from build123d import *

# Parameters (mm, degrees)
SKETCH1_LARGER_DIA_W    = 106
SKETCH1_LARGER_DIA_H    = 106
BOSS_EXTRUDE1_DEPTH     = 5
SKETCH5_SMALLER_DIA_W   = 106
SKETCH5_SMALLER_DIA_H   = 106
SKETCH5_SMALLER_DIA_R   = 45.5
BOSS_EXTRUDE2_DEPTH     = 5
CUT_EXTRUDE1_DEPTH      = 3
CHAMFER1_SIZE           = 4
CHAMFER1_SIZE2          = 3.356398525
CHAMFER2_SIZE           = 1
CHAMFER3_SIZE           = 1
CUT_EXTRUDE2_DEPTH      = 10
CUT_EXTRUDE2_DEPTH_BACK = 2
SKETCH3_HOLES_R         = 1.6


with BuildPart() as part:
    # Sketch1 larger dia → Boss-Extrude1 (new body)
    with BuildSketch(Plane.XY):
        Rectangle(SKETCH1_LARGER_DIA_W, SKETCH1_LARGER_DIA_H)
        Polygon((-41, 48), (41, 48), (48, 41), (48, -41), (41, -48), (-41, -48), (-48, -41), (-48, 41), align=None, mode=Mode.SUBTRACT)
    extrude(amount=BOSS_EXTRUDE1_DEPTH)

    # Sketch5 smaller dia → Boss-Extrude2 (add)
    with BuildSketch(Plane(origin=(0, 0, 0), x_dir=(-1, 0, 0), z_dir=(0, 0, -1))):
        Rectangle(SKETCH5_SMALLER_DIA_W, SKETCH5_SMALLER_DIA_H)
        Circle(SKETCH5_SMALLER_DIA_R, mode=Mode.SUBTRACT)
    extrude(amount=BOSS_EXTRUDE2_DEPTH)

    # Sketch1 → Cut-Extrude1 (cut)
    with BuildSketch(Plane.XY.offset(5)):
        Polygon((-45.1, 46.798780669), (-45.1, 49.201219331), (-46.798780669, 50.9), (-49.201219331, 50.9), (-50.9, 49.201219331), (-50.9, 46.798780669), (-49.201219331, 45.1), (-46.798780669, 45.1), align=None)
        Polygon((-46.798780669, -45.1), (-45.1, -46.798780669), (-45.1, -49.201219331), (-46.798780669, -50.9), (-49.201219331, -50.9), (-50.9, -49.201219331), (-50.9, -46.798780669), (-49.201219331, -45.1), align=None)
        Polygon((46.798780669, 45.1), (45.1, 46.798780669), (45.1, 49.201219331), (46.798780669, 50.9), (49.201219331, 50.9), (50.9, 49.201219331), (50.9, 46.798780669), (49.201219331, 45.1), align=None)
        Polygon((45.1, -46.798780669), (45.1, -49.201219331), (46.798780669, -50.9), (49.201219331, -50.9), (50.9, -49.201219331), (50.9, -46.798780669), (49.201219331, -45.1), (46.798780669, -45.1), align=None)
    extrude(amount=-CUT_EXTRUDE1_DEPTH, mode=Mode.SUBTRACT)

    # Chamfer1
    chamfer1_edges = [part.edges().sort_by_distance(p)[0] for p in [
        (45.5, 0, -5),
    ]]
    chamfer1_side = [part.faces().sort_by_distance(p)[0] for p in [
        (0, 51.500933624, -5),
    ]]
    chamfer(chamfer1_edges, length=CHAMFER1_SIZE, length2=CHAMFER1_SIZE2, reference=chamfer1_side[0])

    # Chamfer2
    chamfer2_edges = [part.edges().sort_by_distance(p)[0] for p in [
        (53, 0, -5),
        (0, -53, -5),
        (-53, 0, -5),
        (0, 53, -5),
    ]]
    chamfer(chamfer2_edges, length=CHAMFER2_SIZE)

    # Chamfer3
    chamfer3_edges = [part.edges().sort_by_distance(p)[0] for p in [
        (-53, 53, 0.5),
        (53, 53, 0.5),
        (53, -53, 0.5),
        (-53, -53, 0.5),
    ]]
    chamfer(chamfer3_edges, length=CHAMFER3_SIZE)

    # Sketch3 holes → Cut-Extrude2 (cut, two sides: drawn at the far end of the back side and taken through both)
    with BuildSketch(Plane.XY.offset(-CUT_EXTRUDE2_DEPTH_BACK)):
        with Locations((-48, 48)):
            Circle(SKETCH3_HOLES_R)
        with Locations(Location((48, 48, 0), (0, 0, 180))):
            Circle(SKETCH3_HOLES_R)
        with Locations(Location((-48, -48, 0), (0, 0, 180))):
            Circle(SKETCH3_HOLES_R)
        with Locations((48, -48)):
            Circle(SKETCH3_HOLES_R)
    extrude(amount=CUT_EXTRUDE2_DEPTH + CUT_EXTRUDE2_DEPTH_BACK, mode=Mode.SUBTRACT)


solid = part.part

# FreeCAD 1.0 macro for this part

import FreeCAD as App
import Part
import Sketcher
Q = App.Units.Quantity


def edges_at(feature, points):
    """Names of the edges that pass closest to the given points."""
    edges = feature.Shape.Edges
    near = lambda p: min(range(len(edges)), key=lambda i: edges[i].distToShape(Part.Vertex(*p))[0])
    return sorted({f"Edge{near(p) + 1}" for p in points})


def add_polygon(sketch, points):
    """Adds a closed chain of lines whose ends are joined by coincident constraints."""
    first, n = sketch.GeometryCount, len(points)
    for a, b in zip(points, points[1:] + points[:1]):
        sketch.addGeometry(Part.LineSegment(App.Vector(*a, 0), App.Vector(*b, 0)), False)
    for i in range(n):
        sketch.addConstraint(Sketcher.Constraint("Coincident", first + i, 2, first + (i + 1) % n, 1))

doc = App.newDocument("Part")
body = doc.addObject("PartDesign::Body", "Body")

sketch1 = body.newObject("Sketcher::SketchObject", "Sketch")
sketch1.AttachmentSupport = (doc.getObject("XY_Plane"), [""])
sketch1.MapMode = "FlatFace"
add_polygon(sketch1, [(-53, 53), (-53, -53), (53, -53), (53, 53)])
add_polygon(sketch1, [(-48, 41), (-41, 48), (41, 48), (48, 41), (48, -41), (41, -48), (-41, -48), (-48, -41)])
sketch1.addConstraint([
    Sketcher.Constraint("Vertical", 0),
    Sketcher.Constraint("Horizontal", 1),
    Sketcher.Constraint("Vertical", 2),
    Sketcher.Constraint("Horizontal", 3),
    Sketcher.Constraint("Horizontal", 5),
    Sketcher.Constraint("Vertical", 7),
    Sketcher.Constraint("Horizontal", 9),
    Sketcher.Constraint("Vertical", 11),
    Sketcher.Constraint("Symmetric", 0, 2, 2, 2, -1, 1),
    Sketcher.Constraint("Symmetric", 4, 2, 8, 2, -1, 1),
    Sketcher.Constraint("Symmetric", 6, 2, 10, 2, -1, 1),
    Sketcher.Constraint("Perpendicular", 4, 6),
    Sketcher.Constraint("Perpendicular", 6, 8),
    Sketcher.Constraint("Perpendicular", 8, 10),
    Sketcher.Constraint("Horizontal", 7, 2, 10, 2),
    Sketcher.Constraint("Vertical", 5, 2, 8, 2),
    Sketcher.Constraint("Equal", 3, 0),
    Sketcher.Constraint("Equal", 9, 7),
    Sketcher.Constraint("DistanceX", 1, 1, 1, 2, Q("106 mm")),
    Sketcher.Constraint("DistanceX", 5, 1, 5, 2, Q("82 mm")),
    Sketcher.Constraint("DistanceY", -1, 1, 4, 2, Q("48 mm")),
])
pad1 = body.newObject("PartDesign::Pad", "Pad")
pad1.Profile = sketch1
pad1.Length = 5

sketch2 = body.newObject("Sketcher::SketchObject", "Sketch001")
sketch2.AttachmentSupport = (doc.getObject("XY_Plane"), [""])
sketch2.MapMode = "FlatFace"
add_polygon(sketch2, [(53, 53), (53, -53), (-53, -53), (-53, 53)])
sketch2.addGeometry(Part.Circle(App.Vector(0, 0, 0), App.Vector(0, 0, 1), 45.5), False)
sketch2.addConstraint([
    Sketcher.Constraint("Vertical", 0),
    Sketcher.Constraint("Horizontal", 1),
    Sketcher.Constraint("Vertical", 2),
    Sketcher.Constraint("Horizontal", 3),
    Sketcher.Constraint("Coincident", 4, 3, -1, 1),
    Sketcher.Constraint("Symmetric", 0, 2, 2, 2, -1, 1),
    Sketcher.Constraint("Equal", 3, 0),
    Sketcher.Constraint("Diameter", 4, Q("91 mm")),
    Sketcher.Constraint("DistanceX", 1, 2, 1, 1, Q("106 mm")),
])
pad2 = body.newObject("PartDesign::Pad", "Pad001")
pad2.Profile = sketch2
pad2.Length = 5
pad2.Reversed = True

sketch3 = body.newObject("Sketcher::SketchObject", "Sketch002")
sketch3.AttachmentSupport = (doc.getObject("XY_Plane"), [""])
sketch3.MapMode = "FlatFace"
sketch3.AttachmentOffset = App.Placement(App.Vector(0, 0, 5), App.Rotation())
add_polygon(sketch3, [(-45.1, 46.798781), (-45.1, 49.201219), (-46.798781, 50.9), (-49.201219, 50.9), (-50.9, 49.201219), (-50.9, 46.798781), (-49.201219, 45.1), (-46.798781, 45.1)])
add_polygon(sketch3, [(-45.1, -46.798781), (-46.798781, -45.1), (-49.201219, -45.1), (-50.9, -46.798781), (-50.9, -49.201219), (-49.201219, -50.9), (-46.798781, -50.9), (-45.1, -49.201219)])
add_polygon(sketch3, [(45.1, 46.798781), (46.798781, 45.1), (49.201219, 45.1), (50.9, 46.798781), (50.9, 49.201219), (49.201219, 50.9), (46.798781, 50.9), (45.1, 49.201219)])
add_polygon(sketch3, [(45.1, -46.798781), (45.1, -49.201219), (46.798781, -50.9), (49.201219, -50.9), (50.9, -49.201219), (50.9, -46.798781), (49.201219, -45.1), (46.798781, -45.1)])
sketch3.addConstraint([
    Sketcher.Constraint("Vertical", 0),
    Sketcher.Constraint("Horizontal", 2),
    Sketcher.Constraint("Vertical", 4),
    Sketcher.Constraint("Horizontal", 6),
    Sketcher.Constraint("Horizontal", 9),
    Sketcher.Constraint("Vertical", 11),
    Sketcher.Constraint("Horizontal", 13),
    Sketcher.Constraint("Vertical", 15),
    Sketcher.Constraint("Horizontal", 17),
    Sketcher.Constraint("Vertical", 19),
    Sketcher.Constraint("Horizontal", 21),
    Sketcher.Constraint("Vertical", 23),
    Sketcher.Constraint("Vertical", 24),
    Sketcher.Constraint("Horizontal", 26),
    Sketcher.Constraint("Vertical", 28),
    Sketcher.Constraint("Horizontal", 30),
    Sketcher.Constraint("Symmetric", 8, 2, 16, 2, -1, 1),
    Sketcher.Constraint("Symmetric", 10, 2, 18, 2, -1, 1),
    Sketcher.Constraint("Symmetric", 12, 2, 20, 2, -1, 1),
    Sketcher.Constraint("Symmetric", 14, 2, 22, 2, -1, 1),
    Sketcher.Constraint("Symmetric", 0, 2, 24, 2, -1, 1),
    Sketcher.Constraint("Symmetric", 1, 2, 25, 2, -1, 1),
    Sketcher.Constraint("Symmetric", 3, 2, 27, 2, -1, 1),
    Sketcher.Constraint("Symmetric", 5, 2, 29, 2, -1, 1),
    Sketcher.Constraint("Symmetric", 6, 2, 16, 2, -2),
    Sketcher.Constraint("Symmetric", 4, 2, 18, 2, -2),
    Sketcher.Constraint("Symmetric", 2, 2, 20, 2, -2),
    Sketcher.Constraint("Symmetric", 0, 2, 22, 2, -2),
    Sketcher.Constraint("Perpendicular", 1, 3),
    Sketcher.Constraint("Perpendicular", 3, 5),
    Sketcher.Constraint("Perpendicular", 5, 7),
    Sketcher.Constraint("Perpendicular", 7, 8),
    Sketcher.Constraint("Perpendicular", 8, 10),
    Sketcher.Constraint("Perpendicular", 10, 12),
    Sketcher.Constraint("Perpendicular", 12, 14),
    Sketcher.Constraint("Perpendicular", 14, 16),
    Sketcher.Constraint("Perpendicular", 16, 18),
    Sketcher.Constraint("Perpendicular", 18, 20),
    Sketcher.Constraint("Perpendicular", 20, 22),
    Sketcher.Constraint("Perpendicular", 25, 27),
    Sketcher.Constraint("Perpendicular", 27, 29),
    Sketcher.Constraint("Perpendicular", 29, 31),
    Sketcher.Constraint("Horizontal", 0, 2, 3, 2),
    Sketcher.Constraint("Horizontal", 4, 2, 7, 2),
    Sketcher.Constraint("Horizontal", 11, 2, 14, 2),
    Sketcher.Constraint("Horizontal", 28, 2, 31, 2),
    Sketcher.Constraint("Vertical", 2, 2, 5, 2),
    Sketcher.Constraint("Equal", 30, 0),
    Sketcher.Constraint("DistanceY", 12, 2, 5, 2, Q("96 mm")),
    Sketcher.Constraint("DistanceX", 5, 2, 16, 2, Q("96 mm")),
    Sketcher.Constraint("DistanceX", 0, 2, -1, 1, Q("45.1 mm")),
    Sketcher.Constraint("DistanceX", 2, 2, 2, 1, Q("2.402439 mm")),
])
pocket1 = body.newObject("PartDesign::Pocket", "Pocket")
pocket1.Profile = sketch3
pocket1.Length = 3
doc.recompute()

chamfer = body.newObject("PartDesign::Chamfer", "Chamfer")
chamfer.Base = (pocket1, edges_at(pocket1, [(45.5, 0, -5)]))
chamfer.ChamferType = "Two distances"
chamfer.Size = 4
chamfer.Size2 = 3.356399
doc.recompute()

chamfer2 = body.newObject("PartDesign::Chamfer", "Chamfer001")
chamfer2.Base = (chamfer, edges_at(chamfer, [
    (53, 0, -5),
    (0, -53, -5),
    (-53, 0, -5),
    (0, 53, -5),
]))
chamfer2.Size = 1
doc.recompute()

chamfer3 = body.newObject("PartDesign::Chamfer", "Chamfer002")
chamfer3.Base = (chamfer2, edges_at(chamfer2, [
    (-53, 53, 0.5),
    (53, 53, 0.5),
    (53, -53, 0.5),
    (-53, -53, 0.5),
]))
chamfer3.Size = 1

sketch4 = body.newObject("Sketcher::SketchObject", "Sketch003")
sketch4.AttachmentSupport = (doc.getObject("XY_Plane"), [""])
sketch4.MapMode = "FlatFace"
sketch4.addGeometry([
    Part.Circle(App.Vector(-48, 48, 0), App.Vector(0, 0, 1), 1.6),
    Part.Circle(App.Vector(48, 48, 0), App.Vector(0, 0, 1), 1.6),
    Part.Circle(App.Vector(-48, -48, 0), App.Vector(0, 0, 1), 1.6),
    Part.Circle(App.Vector(48, -48, 0), App.Vector(0, 0, 1), 1.6),
], False)
sketch4.addConstraint([
    Sketcher.Constraint("Equal", 0, 1),
    Sketcher.Constraint("Equal", 1, 2),
    Sketcher.Constraint("Equal", 2, 3),
    Sketcher.Constraint("Symmetric", 1, 3, 2, 3, -1, 1),
    Sketcher.Constraint("Symmetric", 0, 3, 3, 3, -1, 1),
    Sketcher.Constraint("Symmetric", 0, 3, 1, 3, -2),
    Sketcher.Constraint("Diameter", 0, Q("3.2 mm")),
    Sketcher.Constraint("DistanceX", 0, 3, -1, 1, Q("48 mm")),
    Sketcher.Constraint("DistanceY", -1, 1, 0, 3, Q("48 mm")),
])
pocket2 = body.newObject("PartDesign::Pocket", "Pocket001")
pocket2.Profile = sketch4
pocket2.Type = "TwoLengths"
pocket2.Length = 10
pocket2.Length2 = 2
pocket2.Reversed = True

doc.recompute()
